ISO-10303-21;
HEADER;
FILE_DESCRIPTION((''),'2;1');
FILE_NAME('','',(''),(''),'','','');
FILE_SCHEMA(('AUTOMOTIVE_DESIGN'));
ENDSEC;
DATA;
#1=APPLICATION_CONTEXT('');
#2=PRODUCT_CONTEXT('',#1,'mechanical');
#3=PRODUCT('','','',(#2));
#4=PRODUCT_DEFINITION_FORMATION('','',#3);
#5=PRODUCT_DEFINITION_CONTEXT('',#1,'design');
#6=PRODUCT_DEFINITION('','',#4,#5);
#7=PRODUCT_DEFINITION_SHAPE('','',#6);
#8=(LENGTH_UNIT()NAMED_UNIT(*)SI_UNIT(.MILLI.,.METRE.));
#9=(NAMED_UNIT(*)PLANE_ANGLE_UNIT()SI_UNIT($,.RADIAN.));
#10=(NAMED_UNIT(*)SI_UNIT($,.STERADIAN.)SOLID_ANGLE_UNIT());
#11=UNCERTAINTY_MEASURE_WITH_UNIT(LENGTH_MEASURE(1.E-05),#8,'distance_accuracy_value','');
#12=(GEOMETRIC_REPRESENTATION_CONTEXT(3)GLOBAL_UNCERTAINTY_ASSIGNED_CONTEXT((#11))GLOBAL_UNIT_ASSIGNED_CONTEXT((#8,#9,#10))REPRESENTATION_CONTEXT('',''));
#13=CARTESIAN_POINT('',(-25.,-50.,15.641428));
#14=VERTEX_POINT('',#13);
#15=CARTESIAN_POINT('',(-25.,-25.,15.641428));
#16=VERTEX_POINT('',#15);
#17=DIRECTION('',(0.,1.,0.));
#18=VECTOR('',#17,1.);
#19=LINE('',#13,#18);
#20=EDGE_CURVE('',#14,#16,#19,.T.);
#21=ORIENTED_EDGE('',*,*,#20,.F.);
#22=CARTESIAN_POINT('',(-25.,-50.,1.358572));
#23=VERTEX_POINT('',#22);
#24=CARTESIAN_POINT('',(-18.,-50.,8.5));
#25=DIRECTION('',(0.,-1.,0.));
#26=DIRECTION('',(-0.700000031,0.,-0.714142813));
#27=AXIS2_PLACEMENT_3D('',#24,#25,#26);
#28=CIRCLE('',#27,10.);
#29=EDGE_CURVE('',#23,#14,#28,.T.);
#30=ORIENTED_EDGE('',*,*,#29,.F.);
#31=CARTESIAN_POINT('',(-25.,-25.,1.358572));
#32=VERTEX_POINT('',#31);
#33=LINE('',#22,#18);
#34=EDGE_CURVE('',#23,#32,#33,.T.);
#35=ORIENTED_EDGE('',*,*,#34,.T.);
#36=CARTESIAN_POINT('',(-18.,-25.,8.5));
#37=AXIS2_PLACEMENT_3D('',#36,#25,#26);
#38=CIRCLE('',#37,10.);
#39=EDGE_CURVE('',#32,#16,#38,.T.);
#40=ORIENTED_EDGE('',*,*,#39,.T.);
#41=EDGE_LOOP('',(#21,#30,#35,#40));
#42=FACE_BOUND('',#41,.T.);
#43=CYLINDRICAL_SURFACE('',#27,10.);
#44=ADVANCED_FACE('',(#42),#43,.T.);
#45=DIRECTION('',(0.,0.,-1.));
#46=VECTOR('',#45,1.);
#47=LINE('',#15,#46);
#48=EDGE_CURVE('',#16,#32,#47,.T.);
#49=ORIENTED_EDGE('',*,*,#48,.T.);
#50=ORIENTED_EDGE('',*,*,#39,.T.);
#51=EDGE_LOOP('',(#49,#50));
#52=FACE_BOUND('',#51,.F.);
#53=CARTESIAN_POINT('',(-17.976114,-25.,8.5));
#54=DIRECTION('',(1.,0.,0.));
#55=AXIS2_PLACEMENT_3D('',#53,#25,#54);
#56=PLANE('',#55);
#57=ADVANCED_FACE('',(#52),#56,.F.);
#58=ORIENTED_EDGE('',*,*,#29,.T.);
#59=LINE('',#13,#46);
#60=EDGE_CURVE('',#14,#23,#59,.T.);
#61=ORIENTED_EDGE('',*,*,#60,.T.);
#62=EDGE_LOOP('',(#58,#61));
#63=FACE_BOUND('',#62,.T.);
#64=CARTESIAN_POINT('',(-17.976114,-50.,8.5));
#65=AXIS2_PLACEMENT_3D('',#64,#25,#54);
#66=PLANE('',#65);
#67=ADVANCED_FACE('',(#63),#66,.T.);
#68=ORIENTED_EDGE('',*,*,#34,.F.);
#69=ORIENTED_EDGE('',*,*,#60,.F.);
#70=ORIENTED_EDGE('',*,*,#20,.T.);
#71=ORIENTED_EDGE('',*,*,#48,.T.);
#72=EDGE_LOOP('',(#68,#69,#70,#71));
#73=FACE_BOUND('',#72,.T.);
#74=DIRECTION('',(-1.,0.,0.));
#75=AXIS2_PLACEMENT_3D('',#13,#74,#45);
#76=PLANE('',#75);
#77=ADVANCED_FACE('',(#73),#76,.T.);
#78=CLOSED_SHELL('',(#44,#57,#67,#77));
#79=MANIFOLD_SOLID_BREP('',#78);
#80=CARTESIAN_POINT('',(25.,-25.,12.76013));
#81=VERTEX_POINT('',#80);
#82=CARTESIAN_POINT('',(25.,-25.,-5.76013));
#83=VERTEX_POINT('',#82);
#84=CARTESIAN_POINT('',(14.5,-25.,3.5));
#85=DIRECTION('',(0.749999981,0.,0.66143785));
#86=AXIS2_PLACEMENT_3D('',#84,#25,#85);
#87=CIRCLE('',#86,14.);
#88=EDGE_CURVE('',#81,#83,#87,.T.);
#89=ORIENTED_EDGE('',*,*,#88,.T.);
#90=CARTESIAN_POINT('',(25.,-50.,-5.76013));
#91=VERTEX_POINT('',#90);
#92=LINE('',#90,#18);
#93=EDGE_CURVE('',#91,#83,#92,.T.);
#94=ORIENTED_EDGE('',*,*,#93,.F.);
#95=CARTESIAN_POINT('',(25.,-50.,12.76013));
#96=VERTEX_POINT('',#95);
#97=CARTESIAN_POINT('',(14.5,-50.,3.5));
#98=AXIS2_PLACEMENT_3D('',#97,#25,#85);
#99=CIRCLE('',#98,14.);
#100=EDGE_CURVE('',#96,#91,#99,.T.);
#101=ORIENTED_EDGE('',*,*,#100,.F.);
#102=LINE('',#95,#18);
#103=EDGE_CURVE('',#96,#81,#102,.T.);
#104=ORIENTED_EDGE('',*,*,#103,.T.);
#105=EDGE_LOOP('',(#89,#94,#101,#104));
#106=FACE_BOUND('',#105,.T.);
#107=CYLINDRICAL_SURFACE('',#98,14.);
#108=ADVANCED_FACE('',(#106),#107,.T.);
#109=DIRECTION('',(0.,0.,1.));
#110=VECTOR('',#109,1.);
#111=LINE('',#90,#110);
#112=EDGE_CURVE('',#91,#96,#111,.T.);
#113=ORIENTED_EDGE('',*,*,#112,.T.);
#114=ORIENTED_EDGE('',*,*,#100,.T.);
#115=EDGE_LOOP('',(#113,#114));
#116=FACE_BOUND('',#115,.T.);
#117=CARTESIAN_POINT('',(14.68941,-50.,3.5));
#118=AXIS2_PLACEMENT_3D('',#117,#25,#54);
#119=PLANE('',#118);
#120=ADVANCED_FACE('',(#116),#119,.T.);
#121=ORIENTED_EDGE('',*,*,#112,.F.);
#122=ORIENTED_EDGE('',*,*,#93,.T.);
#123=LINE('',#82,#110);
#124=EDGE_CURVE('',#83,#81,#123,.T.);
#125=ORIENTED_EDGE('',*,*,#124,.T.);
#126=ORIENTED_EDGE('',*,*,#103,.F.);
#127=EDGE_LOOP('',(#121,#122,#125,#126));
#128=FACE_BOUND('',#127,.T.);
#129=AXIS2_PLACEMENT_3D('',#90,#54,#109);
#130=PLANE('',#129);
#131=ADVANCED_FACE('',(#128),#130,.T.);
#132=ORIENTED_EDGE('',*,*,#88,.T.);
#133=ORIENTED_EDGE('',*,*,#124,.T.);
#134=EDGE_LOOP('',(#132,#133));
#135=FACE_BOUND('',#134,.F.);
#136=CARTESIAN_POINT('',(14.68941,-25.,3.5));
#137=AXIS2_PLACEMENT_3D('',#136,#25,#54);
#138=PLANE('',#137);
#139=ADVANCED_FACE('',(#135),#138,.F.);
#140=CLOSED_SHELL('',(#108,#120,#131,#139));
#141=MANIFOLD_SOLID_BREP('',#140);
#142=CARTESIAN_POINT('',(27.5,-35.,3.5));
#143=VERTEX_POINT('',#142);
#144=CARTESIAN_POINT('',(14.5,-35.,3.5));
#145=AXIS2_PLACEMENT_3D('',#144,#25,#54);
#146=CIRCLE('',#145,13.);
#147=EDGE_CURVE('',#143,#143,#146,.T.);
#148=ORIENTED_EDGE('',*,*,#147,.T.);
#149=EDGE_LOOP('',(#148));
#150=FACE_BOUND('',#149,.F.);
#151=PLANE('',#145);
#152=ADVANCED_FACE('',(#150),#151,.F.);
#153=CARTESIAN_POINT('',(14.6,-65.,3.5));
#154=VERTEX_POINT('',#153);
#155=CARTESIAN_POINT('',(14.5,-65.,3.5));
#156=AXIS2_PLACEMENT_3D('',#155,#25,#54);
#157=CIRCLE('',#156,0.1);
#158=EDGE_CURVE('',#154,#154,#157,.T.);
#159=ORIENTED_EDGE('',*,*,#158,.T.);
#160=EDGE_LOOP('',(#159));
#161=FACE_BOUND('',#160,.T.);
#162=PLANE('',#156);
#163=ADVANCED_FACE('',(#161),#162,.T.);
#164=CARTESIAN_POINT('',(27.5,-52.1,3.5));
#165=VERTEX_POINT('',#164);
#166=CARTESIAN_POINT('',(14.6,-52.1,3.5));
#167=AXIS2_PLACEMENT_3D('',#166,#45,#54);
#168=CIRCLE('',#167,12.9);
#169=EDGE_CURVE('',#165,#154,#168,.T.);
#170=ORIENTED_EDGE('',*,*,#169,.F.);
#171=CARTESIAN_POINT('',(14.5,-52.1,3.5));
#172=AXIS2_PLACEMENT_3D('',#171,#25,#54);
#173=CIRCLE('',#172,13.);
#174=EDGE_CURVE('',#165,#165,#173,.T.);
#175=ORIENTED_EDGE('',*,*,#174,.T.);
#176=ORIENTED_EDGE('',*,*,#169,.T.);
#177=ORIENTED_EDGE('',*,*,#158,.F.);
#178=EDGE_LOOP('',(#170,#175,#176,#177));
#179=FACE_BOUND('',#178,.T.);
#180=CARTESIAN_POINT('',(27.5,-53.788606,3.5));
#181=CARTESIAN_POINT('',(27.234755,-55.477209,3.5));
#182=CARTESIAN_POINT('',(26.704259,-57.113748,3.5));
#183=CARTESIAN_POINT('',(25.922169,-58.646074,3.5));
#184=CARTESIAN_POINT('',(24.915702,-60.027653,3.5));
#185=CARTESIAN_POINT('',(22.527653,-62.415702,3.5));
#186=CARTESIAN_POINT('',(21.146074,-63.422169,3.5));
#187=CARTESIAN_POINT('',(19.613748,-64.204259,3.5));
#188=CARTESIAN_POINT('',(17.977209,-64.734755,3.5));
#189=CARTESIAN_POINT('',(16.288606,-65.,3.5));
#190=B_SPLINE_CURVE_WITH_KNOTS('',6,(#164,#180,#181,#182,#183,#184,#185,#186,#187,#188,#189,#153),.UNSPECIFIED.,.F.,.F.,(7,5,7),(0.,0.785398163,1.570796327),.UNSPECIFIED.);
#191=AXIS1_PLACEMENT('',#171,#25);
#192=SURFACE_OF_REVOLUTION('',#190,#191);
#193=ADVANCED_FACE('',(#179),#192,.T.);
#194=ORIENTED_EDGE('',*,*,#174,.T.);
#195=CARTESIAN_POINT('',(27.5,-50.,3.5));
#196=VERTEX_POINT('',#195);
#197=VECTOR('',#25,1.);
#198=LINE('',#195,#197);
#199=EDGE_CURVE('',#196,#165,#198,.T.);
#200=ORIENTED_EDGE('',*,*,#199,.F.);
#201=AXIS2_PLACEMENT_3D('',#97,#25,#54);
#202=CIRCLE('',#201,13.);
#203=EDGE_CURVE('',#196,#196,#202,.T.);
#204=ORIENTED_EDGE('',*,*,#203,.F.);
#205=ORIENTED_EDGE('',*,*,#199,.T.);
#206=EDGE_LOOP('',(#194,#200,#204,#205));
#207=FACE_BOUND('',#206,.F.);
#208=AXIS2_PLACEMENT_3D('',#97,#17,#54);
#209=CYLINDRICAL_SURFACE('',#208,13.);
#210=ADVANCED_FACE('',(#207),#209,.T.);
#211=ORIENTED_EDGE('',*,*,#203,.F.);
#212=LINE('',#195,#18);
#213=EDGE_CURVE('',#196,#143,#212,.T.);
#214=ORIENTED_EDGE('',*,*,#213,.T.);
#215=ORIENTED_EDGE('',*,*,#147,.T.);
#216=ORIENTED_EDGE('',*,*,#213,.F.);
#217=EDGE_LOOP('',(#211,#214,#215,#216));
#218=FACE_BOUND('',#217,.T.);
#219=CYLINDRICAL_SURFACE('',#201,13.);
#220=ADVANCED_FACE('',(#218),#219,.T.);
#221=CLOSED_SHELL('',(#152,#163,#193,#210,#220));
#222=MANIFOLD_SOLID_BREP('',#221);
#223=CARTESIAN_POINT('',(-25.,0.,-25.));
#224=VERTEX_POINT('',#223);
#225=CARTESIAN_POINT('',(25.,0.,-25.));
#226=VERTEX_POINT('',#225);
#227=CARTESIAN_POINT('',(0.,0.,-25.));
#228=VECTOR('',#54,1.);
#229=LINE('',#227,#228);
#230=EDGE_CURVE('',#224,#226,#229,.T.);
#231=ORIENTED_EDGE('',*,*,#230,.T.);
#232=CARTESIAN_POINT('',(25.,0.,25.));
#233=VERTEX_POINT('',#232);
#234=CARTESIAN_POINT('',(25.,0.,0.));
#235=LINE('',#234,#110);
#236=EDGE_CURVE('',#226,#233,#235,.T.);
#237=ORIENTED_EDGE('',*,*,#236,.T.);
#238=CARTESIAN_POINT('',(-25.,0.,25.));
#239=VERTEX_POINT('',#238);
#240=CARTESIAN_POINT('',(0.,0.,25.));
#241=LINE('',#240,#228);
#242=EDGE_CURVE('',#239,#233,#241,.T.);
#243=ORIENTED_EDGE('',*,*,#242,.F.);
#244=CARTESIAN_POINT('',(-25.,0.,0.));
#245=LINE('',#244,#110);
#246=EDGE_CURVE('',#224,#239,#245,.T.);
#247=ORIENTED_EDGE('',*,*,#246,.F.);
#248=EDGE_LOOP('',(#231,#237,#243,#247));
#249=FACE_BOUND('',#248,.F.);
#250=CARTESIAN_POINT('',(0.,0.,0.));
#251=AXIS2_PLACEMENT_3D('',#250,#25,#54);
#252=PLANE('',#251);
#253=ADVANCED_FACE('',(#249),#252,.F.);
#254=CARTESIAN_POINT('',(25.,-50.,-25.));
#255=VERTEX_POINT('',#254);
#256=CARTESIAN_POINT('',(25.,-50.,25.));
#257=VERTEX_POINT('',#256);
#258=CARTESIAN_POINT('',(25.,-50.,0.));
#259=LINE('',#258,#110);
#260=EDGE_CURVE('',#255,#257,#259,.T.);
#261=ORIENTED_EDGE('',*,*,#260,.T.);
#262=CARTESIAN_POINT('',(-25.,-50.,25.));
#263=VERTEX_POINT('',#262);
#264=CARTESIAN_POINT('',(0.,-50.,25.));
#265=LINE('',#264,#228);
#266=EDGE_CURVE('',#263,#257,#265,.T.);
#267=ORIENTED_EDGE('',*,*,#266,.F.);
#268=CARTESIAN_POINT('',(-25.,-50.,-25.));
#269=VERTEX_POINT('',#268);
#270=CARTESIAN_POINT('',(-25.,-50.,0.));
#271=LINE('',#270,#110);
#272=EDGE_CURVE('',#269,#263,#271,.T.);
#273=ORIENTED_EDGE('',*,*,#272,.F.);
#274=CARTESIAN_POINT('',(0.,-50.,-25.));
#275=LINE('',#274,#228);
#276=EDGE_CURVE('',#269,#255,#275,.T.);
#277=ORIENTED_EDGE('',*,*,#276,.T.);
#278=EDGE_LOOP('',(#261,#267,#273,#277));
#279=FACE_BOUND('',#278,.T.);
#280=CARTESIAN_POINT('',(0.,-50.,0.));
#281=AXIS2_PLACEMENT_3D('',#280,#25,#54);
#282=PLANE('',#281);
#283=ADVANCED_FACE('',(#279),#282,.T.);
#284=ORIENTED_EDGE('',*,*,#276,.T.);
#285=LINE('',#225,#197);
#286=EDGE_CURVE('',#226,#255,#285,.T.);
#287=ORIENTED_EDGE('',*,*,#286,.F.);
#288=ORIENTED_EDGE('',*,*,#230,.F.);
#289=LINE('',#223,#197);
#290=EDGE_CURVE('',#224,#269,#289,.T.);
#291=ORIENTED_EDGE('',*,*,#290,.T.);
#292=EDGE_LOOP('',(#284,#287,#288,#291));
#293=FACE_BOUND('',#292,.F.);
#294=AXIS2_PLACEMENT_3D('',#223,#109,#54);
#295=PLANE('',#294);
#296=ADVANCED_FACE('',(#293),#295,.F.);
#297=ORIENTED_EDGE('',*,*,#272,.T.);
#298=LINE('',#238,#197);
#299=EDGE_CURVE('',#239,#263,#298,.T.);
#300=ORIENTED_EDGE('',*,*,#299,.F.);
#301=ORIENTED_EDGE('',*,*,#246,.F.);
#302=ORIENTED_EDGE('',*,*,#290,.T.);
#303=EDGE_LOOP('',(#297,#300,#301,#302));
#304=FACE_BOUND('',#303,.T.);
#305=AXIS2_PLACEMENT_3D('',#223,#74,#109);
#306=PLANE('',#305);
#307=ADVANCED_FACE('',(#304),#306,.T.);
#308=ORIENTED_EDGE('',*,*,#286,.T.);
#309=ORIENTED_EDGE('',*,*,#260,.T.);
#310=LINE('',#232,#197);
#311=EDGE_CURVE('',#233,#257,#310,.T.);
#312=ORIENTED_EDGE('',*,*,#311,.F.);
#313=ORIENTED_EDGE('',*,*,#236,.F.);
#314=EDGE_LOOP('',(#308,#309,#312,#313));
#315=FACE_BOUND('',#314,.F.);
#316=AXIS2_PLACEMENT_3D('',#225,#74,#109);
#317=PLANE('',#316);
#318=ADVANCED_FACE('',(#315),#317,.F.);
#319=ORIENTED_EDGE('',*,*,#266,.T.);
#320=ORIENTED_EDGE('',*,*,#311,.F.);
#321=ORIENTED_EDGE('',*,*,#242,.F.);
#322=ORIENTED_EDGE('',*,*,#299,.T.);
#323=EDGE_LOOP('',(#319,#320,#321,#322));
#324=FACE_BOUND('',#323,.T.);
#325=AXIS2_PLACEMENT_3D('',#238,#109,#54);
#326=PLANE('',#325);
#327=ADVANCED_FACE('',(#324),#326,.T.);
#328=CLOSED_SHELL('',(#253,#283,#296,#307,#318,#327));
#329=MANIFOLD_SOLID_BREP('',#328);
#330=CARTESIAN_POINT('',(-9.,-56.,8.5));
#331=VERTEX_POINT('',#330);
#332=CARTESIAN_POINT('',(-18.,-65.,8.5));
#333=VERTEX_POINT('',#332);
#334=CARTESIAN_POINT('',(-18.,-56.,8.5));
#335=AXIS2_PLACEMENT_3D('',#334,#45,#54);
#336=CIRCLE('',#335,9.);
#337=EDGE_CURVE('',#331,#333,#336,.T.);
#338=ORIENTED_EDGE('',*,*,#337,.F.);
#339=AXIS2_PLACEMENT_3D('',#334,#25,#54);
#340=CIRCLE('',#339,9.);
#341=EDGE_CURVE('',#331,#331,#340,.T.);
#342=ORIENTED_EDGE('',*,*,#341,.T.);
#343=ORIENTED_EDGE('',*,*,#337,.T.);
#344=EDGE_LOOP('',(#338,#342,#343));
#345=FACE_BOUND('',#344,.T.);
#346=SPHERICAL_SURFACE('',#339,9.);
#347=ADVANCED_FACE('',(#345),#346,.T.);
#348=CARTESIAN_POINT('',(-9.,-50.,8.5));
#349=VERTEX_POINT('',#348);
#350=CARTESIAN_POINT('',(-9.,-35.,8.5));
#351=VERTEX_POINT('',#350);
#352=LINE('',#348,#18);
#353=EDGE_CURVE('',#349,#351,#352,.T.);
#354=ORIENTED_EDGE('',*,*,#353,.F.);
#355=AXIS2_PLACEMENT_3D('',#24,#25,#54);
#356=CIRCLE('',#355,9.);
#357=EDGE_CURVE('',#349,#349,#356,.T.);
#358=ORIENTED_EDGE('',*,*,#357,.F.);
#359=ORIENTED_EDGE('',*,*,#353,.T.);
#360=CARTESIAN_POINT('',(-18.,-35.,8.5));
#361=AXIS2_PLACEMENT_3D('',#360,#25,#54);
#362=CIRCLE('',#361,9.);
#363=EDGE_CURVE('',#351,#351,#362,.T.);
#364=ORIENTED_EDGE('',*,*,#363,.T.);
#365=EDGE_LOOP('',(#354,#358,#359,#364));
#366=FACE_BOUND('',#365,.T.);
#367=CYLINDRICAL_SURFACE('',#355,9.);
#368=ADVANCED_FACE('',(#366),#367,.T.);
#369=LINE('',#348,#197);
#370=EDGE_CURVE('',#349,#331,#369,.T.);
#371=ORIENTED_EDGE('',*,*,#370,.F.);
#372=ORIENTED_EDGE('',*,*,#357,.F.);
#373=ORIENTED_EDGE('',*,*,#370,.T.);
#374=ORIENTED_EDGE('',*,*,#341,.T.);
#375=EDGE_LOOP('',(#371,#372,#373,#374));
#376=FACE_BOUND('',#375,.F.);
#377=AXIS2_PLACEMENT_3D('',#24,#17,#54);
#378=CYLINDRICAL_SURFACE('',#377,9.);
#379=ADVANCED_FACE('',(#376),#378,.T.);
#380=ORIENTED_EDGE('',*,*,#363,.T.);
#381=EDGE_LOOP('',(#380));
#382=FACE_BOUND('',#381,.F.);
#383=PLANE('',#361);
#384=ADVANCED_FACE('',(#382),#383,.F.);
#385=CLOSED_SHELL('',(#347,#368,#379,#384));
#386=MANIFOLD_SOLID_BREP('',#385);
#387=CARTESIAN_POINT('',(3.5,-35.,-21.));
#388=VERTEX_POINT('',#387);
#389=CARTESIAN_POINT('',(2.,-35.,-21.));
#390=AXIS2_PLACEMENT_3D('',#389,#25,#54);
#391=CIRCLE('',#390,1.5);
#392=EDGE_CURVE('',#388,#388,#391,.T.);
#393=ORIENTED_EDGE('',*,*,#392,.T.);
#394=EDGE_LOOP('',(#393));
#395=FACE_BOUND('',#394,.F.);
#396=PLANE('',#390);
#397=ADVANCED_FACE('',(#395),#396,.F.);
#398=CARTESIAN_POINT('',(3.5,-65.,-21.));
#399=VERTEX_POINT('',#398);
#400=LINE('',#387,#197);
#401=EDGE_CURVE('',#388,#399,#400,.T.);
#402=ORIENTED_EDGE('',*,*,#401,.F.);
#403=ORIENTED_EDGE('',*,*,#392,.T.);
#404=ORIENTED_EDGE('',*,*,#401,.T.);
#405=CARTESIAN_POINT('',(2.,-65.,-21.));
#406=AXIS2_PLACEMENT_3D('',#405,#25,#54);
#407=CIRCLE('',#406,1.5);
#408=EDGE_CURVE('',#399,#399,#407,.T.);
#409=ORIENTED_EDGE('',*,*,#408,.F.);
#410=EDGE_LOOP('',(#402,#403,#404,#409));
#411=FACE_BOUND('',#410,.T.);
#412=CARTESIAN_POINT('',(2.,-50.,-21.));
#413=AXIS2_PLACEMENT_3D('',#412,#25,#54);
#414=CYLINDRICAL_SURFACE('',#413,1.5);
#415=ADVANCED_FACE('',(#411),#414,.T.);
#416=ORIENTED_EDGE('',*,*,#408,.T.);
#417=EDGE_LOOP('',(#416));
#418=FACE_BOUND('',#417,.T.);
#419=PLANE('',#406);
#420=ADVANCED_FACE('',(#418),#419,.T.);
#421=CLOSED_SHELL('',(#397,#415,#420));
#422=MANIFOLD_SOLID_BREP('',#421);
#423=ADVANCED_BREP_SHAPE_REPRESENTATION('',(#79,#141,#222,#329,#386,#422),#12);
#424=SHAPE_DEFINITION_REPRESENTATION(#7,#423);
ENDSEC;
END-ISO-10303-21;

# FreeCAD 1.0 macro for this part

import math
import FreeCAD as App
import Part
import Sketcher
Q = App.Units.Quantity


def edges_at(feature, points):
    """Names of the edges that pass closest to the given points."""
    edges = feature.Shape.Edges
    near = lambda p: min(range(len(edges)), key=lambda i: edges[i].distToShape(Part.Vertex(*p))[0])
    return sorted({f"Edge{near(p) + 1}" for p in points})


def add_polygon(sketch, points):
    """Adds a closed chain of lines whose ends are joined by coincident constraints."""
    first, n = sketch.GeometryCount, len(points)
    for a, b in zip(points, points[1:] + points[:1]):
        sketch.addGeometry(Part.LineSegment(App.Vector(*a, 0), App.Vector(*b, 0)), False)
    for i in range(n):
        sketch.addConstraint(Sketcher.Constraint("Coincident", first + i, 2, first + (i + 1) % n, 1))

doc = App.newDocument("Part")
body = doc.addObject("PartDesign::Body", "Body")

# Sketch on XZ plane
sketch1 = body.newObject("Sketcher::SketchObject", "Sketch")
sketch1.AttachmentSupport = (doc.getObject("XZ_Plane"), [""])
sketch1.MapMode = "FlatFace"
add_polygon(sketch1, [(-25, 25), (-25, -25), (25, -25), (25, 25)])  # lines 0-3
sketch1.addConstraint(Sketcher.Constraint("Vertical", 0))
sketch1.addConstraint(Sketcher.Constraint("Horizontal", 1))
sketch1.addConstraint(Sketcher.Constraint("Vertical", 2))
sketch1.addConstraint(Sketcher.Constraint("Horizontal", 3))
sketch1.addConstraint(Sketcher.Constraint("Symmetric", 0, 2, 2, 2, -1, 1))
sketch1.addConstraint(Sketcher.Constraint("Equal", 3, 0))
sketch1.addConstraint(Sketcher.Constraint("DistanceX", 1, 1, 1, 2, Q("50 mm")))
pad1 = body.newObject("PartDesign::Pad", "Pad")
pad1.Profile = sketch1
pad1.Length = 50
body2 = doc.addObject("PartDesign::Body", "Body001")
body2.AllowCompound = True

# Sketch on XZ plane
sketch2 = body2.newObject("Sketcher::SketchObject", "Sketch001")
sketch2.AttachmentSupport = (doc.getObject("XZ_Plane001"), [""])
sketch2.MapMode = "FlatFace"
sketch2.AttachmentOffset = App.Placement(App.Vector(0, 0, 50), App.Rotation())
sketch2.addGeometry(Part.Circle(App.Vector(-18, 8.5, 0), App.Vector(0, 0, 1), 9), False)
sketch2.addGeometry(Part.Circle(App.Vector(14.5, 3.5, 0), App.Vector(0, 0, 1), 13), False)
sketch2.addGeometry(Part.Circle(App.Vector(2, -21, 0), App.Vector(0, 0, 1), 1.5), False)
sketch2.addConstraint(Sketcher.Constraint("Diameter", 0, Q("18 mm")))
sketch2.addConstraint(Sketcher.Constraint("Diameter", 1, Q("26 mm")))
sketch2.addConstraint(Sketcher.Constraint("Diameter", 2, Q("3 mm")))
sketch2.addConstraint(Sketcher.Constraint("DistanceX", 0, 3, -1, 1, Q("18 mm")))
sketch2.addConstraint(Sketcher.Constraint("DistanceX", -1, 1, 2, 3, Q("2 mm")))
sketch2.addConstraint(Sketcher.Constraint("DistanceY", 2, 3, -1, 1, Q("21 mm")))
sketch2.addConstraint(Sketcher.Constraint("DistanceY", 1, 3, 0, 3, Q("5 mm")))
sketch2.addConstraint(Sketcher.Constraint("DistanceY", -1, 1, 0, 3, Q("8.5 mm")))
sketch2.addConstraint(Sketcher.Constraint("DistanceX", -1, 1, 1, 3, Q("14.5 mm")))
pad2 = body2.newObject("PartDesign::Pad", "Pad001")
pad2.Profile = sketch2
pad2.Length = 30
pad2.Midplane = True
doc.recompute()

fillet = body2.newObject("PartDesign::Fillet", "Fillet")
fillet.Base = (pad2, edges_at(pad2, [(1.5, -65, 3.5)]))
fillet.Radius = 12.9
doc.recompute()

fillet2 = body2.newObject("PartDesign::Fillet", "Fillet001")
fillet2.Base = (fillet, edges_at(fillet, [(-27, -65, 8.5)]))
fillet2.Radius = 9
body3 = doc.addObject("PartDesign::Body", "Body002")
body3.AllowCompound = True

# Sketch on XZ plane
sketch3 = body3.newObject("Sketcher::SketchObject", "Sketch002")
sketch3.AttachmentSupport = (doc.getObject("XZ_Plane002"), [""])
sketch3.MapMode = "FlatFace"
sketch3.AttachmentOffset = App.Placement(App.Vector(0, 0, 50), App.Rotation())
sketch3.addGeometry(Part.LineSegment(App.Vector(-25, 15.641428, 0), App.Vector(-25, 1.358572, 0)), False)
sketch3.addGeometry(Part.ArcOfCircle(Part.Circle(App.Vector(-18, 8.5, 0), App.Vector(0, 0, 1), 10), math.radians(-134.427006), math.radians(134.427006)), False)
sketch3.addGeometry(Part.LineSegment(App.Vector(25, -5.76013, 0), App.Vector(25, 12.76013, 0)), False)
sketch3.addGeometry(Part.ArcOfCircle(Part.Circle(App.Vector(14.5, 3.5, 0), App.Vector(0, 0, 1), 14), math.radians(41.409624), math.radians(318.590376)), False)
sketch3.addConstraint(Sketcher.Constraint("Coincident", 0, 1, 1, 2))
sketch3.addConstraint(Sketcher.Constraint("Coincident", 1, 1, 0, 2))
sketch3.addConstraint(Sketcher.Constraint("Coincident", 2, 1, 3, 2))
sketch3.addConstraint(Sketcher.Constraint("Coincident", 3, 1, 2, 2))
sketch3.addConstraint(Sketcher.Constraint("Vertical", 0))
sketch3.addConstraint(Sketcher.Constraint("Vertical", 2))
sketch3.addConstraint(Sketcher.Constraint("Radius", 1, Q("10 mm")))
sketch3.addConstraint(Sketcher.Constraint("Radius", 3, Q("14 mm")))
sketch3.addConstraint(Sketcher.Constraint("DistanceX", 1, 3, -1, 1, Q("18 mm")))
sketch3.addConstraint(Sketcher.Constraint("DistanceX", 0, 1, -1, 1, Q("25 mm")))
sketch3.addConstraint(Sketcher.Constraint("DistanceX", -1, 1, 2, 1, Q("25 mm")))
sketch3.addConstraint(Sketcher.Constraint("DistanceY", 3, 3, 1, 3, Q("5 mm")))
sketch3.addConstraint(Sketcher.Constraint("DistanceY", -1, 1, 1, 3, Q("8.5 mm")))
sketch3.addConstraint(Sketcher.Constraint("DistanceX", -1, 1, 3, 3, Q("14.5 mm")))
pad3 = body3.newObject("PartDesign::Pad", "Pad002")
pad3.Profile = sketch3
pad3.Length = 25
pad3.Reversed = True

doc.recompute()
